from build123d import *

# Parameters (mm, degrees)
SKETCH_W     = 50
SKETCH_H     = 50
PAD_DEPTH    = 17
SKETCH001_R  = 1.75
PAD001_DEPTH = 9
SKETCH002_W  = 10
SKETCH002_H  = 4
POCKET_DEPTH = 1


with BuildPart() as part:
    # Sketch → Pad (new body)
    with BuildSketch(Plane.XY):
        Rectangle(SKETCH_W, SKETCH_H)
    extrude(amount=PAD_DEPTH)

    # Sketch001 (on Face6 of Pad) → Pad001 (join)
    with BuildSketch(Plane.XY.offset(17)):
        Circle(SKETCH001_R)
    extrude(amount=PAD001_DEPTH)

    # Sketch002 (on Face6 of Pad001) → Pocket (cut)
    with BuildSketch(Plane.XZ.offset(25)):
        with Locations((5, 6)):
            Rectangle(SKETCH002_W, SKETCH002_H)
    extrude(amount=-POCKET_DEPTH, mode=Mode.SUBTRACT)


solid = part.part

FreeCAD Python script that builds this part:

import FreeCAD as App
import Part
import Sketcher

V = App.Vector


def add_polygon(sketch, points):
    """Adds a closed chain of lines whose ends are joined by coincident constraints."""
    first, n = sketch.GeometryCount, len(points)
    for a, b in zip(points, points[1:] + points[:1]):
        sketch.addGeometry(Part.LineSegment(App.Vector(*a, 0), App.Vector(*b, 0)), False)
    for i in range(n):
        sketch.addConstraint(Sketcher.Constraint("Coincident", first + i, 2, first + (i + 1) % n, 1))

doc = App.newDocument("Part")
body = doc.addObject("PartDesign::Body", "Body")

# Sketch on XY plane
sketch1 = body.newObject("Sketcher::SketchObject", "Sketch")
sketch1.AttachmentSupport = (doc.getObject("XY_Plane"), [""])
sketch1.MapMode = "FlatFace"
add_polygon(sketch1, [(-25, 25), (-25, -25), (25, -25), (25, 25)])  # lines 0-3
sketch1.addConstraint([
    Sketcher.Constraint("Vertical", 0),
    Sketcher.Constraint("Horizontal", 1),
    Sketcher.Constraint("Vertical", 2),
    Sketcher.Constraint("Horizontal", 3),
    Sketcher.Constraint("Symmetric", 0, 2, 2, 2, -1, 1),
    Sketcher.Constraint("Equal", 3, 0),
    Sketcher.Constraint("DistanceX", 1, 1, 1, 2, 50.0),
])
pad1 = body.newObject("PartDesign::Pad", "Pad")
pad1.Profile = sketch1
pad1.Length = 17

# Sketch on XY plane
sketch2 = body.newObject("Sketcher::SketchObject", "Sketch001")
sketch2.AttachmentSupport = (doc.getObject("XY_Plane"), [""])
sketch2.MapMode = "FlatFace"
sketch2.AttachmentOffset = App.Placement(V(0, 0, 17), App.Rotation())
sketch2.addGeometry(Part.Circle(V(0, 0, 0), V(0, 0, 1), 1.8), False)
sketch2.addConstraint([
    Sketcher.Constraint("Coincident", 0, 3, -1, 1),
    Sketcher.Constraint("Diameter", 0, 3.5),
])
pad2 = body.newObject("PartDesign::Pad", "Pad001")
pad2.Profile = sketch2
pad2.Length = 9

# Sketch on XZ plane
sketch3 = body.newObject("Sketcher::SketchObject", "Sketch002")
sketch3.AttachmentSupport = (doc.getObject("XZ_Plane"), [""])
sketch3.MapMode = "FlatFace"
sketch3.AttachmentOffset = App.Placement(V(0, 0, 25), App.Rotation())
add_polygon(sketch3, [(0, 8), (0, 4), (10, 4), (10, 8)])  # lines 0-3
sketch3.addConstraint([
    Sketcher.Constraint("Vertical", 0),
    Sketcher.Constraint("Horizontal", 1),
    Sketcher.Constraint("Vertical", 2),
    Sketcher.Constraint("Horizontal", 3),
    Sketcher.Constraint("PointOnObject", 0, 2, -2),
    Sketcher.Constraint("DistanceX", 1, 1, 1, 2, 10.0),
    Sketcher.Constraint("DistanceY", 0, 2, 0, 1, 4.0),
    Sketcher.Constraint("DistanceY", -1, 1, 0, 2, 4.0),
])
pocket1 = body.newObject("PartDesign::Pocket", "Pocket")
pocket1.Profile = sketch3
pocket1.Length = 1

doc.recompute()
